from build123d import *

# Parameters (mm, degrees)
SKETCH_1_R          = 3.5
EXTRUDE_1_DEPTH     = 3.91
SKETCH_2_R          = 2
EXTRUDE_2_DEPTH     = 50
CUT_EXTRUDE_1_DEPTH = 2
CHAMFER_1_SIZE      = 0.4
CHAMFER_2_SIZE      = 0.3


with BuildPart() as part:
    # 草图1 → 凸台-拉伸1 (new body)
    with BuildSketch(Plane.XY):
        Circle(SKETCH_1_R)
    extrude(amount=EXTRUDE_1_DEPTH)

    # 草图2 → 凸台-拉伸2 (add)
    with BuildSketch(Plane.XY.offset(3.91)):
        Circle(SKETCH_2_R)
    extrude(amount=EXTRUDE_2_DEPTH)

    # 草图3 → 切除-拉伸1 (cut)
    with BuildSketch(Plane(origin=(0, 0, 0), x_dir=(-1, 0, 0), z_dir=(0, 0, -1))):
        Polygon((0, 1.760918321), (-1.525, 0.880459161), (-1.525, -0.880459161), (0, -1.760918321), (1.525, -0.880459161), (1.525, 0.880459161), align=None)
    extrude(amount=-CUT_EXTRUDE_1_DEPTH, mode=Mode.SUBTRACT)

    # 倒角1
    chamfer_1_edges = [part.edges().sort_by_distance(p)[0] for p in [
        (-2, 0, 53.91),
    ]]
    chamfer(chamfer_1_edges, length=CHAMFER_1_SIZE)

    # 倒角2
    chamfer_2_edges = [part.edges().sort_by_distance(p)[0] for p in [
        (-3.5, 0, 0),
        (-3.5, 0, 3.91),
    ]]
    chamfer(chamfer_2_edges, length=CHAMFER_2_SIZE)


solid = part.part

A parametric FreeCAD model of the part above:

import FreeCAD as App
import Part
import Sketcher
Q = App.Units.Quantity


def edges_at(feature, points):
    """Names of the edges that pass closest to the given points."""
    edges = feature.Shape.Edges
    near = lambda p: min(range(len(edges)), key=lambda i: edges[i].distToShape(Part.Vertex(*p))[0])
    return sorted({f"Edge{near(p) + 1}" for p in points})

doc = App.newDocument("Part")
params = doc.addObject("Spreadsheet::Sheet", "Params")
for row, (alias, value) in enumerate([
    ("sketch1_diameter", "7 mm"),
    ("pad1_length", "3.91 mm"),
    ("sketch2_diameter", "4 mm"),
    ("pad2_length", "50 mm"),
    ("pocket1_length", "2 mm"),
    ("chamfer_size", "0.4 mm"),
    ("chamfer2_size", "0.3 mm"),
], start=1):
    params.set(f"A{row}", alias)
    params.set(f"B{row}", "=" + value)
    params.setAlias(f"B{row}", alias)

body = doc.addObject("PartDesign::Body", "Body")

sketch1 = body.newObject("Sketcher::SketchObject", "Sketch")
sketch1.AttachmentSupport = (doc.getObject("XY_Plane"), [""])
sketch1.MapMode = "FlatFace"
sketch1.addGeometry(Part.Circle(App.Vector(0, 0, 0), App.Vector(0, 0, 1), 3.5), False)
sketch1.addConstraint([
    Sketcher.Constraint("Coincident", 0, 3, -1, 1),
    Sketcher.Constraint("Diameter", 0, 7.0),
])
sketch1.setExpression("Constraints[1]", "Params.sketch1_diameter")
pad1 = body.newObject("PartDesign::Pad", "Pad")
pad1.Profile = sketch1
pad1.setExpression("Length", "Params.pad1_length")

sketch2 = body.newObject("Sketcher::SketchObject", "Sketch001")
sketch2.AttachmentSupport = (doc.getObject("XY_Plane"), [""])
sketch2.MapMode = "FlatFace"
sketch2.AttachmentOffset = App.Placement(App.Vector(0, 0, 3.91), App.Rotation())
sketch2.addGeometry(Part.Circle(App.Vector(0, 0, 0), App.Vector(0, 0, 1), 2), False)
sketch2.addConstraint([
    Sketcher.Constraint("Coincident", 0, 3, -1, 1),
    Sketcher.Constraint("Diameter", 0, 4.0),
])
sketch2.setExpression("Constraints[1]", "Params.sketch2_diameter")
pad2 = body.newObject("PartDesign::Pad", "Pad001")
pad2.Profile = sketch2
pad2.setExpression("Length", "Params.pad2_length")

sketch3 = body.newObject("Sketcher::SketchObject", "Sketch002")
sketch3.AttachmentSupport = (doc.getObject("XY_Plane"), [""])
sketch3.MapMode = "FlatFace"
sketch3.addGeometry([
    Part.LineSegment(App.Vector(0, 1.8, 0), App.Vector(1.5, 0.9, 0)),
    Part.LineSegment(App.Vector(1.5, 0.9, 0), App.Vector(1.5, -0.9, 0)),
    Part.LineSegment(App.Vector(1.5, -0.9, 0), App.Vector(0, -1.8, 0)),
    Part.LineSegment(App.Vector(0, -1.8, 0), App.Vector(-1.5, -0.9, 0)),
    Part.LineSegment(App.Vector(-1.5, -0.9, 0), App.Vector(-1.5, 0.9, 0)),
    Part.LineSegment(App.Vector(-1.5, 0.9, 0), App.Vector(0, 1.8, 0)),
], False)
sketch3.addConstraint([
    Sketcher.Constraint("Coincident", 0, 2, 1, 1),
    Sketcher.Constraint("Coincident", 1, 2, 2, 1),
    Sketcher.Constraint("Coincident", 2, 2, 3, 1),
    Sketcher.Constraint("Coincident", 3, 2, 4, 1),
    Sketcher.Constraint("Coincident", 4, 2, 5, 1),
    Sketcher.Constraint("Coincident", 5, 2, 0, 1),
    Sketcher.Constraint("Vertical", 1),
    Sketcher.Constraint("Vertical", 4),
    Sketcher.Constraint("Symmetric", 0, 2, 3, 2, -1, 1),
    Sketcher.Constraint("Symmetric", 2, 2, 5, 2, -1, 1),
    Sketcher.Constraint("PointOnObject", 2, 2, -2),
    Sketcher.Constraint("Parallel", 2, 5),
    Sketcher.Constraint("Horizontal", 1, 2, 3, 2),
    Sketcher.Constraint("Angle", 0, Q("-30 deg")),
    Sketcher.Constraint("DistanceX", 3, 2, 1, 2, 3.05),
    Sketcher.Constraint("DistanceY", 1, 2, 1, 1, 1.760918),
])
pocket1 = body.newObject("PartDesign::Pocket", "Pocket")
pocket1.Profile = sketch3
pocket1.setExpression("Length", "Params.pocket1_length")
pocket1.Reversed = True
doc.recompute()

chamfer = body.newObject("PartDesign::Chamfer", "Chamfer")
chamfer.Base = (pocket1, edges_at(pocket1, [(-2, 0, 53.91)]))
chamfer.setExpression("Size", "Params.chamfer_size")
doc.recompute()

chamfer2 = body.newObject("PartDesign::Chamfer", "Chamfer001")
chamfer2.Base = (chamfer, edges_at(chamfer, [(-3.5, 0, 0), (-3.5, 0, 3.91)]))
chamfer2.setExpression("Size", "Params.chamfer2_size")

doc.recompute()
